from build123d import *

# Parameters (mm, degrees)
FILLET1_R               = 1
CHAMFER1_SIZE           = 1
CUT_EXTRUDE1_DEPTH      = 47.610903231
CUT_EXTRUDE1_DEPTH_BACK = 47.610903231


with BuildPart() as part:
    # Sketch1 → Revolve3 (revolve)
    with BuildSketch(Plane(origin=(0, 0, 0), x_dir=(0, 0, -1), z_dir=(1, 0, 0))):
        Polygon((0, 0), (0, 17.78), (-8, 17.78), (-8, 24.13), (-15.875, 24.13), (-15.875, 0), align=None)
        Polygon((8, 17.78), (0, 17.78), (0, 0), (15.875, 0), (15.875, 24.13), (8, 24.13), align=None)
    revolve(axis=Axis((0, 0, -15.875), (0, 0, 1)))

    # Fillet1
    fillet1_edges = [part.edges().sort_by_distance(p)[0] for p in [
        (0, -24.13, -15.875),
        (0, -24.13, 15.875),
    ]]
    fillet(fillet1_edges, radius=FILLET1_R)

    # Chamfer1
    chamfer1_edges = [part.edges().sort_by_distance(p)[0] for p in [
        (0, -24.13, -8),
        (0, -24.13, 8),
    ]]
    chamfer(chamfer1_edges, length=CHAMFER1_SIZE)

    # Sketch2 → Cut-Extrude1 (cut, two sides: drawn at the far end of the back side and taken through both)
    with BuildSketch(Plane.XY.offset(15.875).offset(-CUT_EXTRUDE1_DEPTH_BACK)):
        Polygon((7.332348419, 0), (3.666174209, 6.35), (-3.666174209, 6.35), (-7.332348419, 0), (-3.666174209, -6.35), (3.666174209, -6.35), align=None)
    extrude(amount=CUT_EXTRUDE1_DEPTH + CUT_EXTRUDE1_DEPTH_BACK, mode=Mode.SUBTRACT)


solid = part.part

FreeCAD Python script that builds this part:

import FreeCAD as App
import Part
import Sketcher
from FreeCAD import Vector
Q = App.Units.Quantity


def edges_at(feature, points):
    """Names of the edges that pass closest to the given points."""
    edges = feature.Shape.Edges
    near = lambda p: min(range(len(edges)), key=lambda i: edges[i].distToShape(Part.Vertex(*p))[0])
    return sorted({f"Edge{near(p) + 1}" for p in points})

doc = App.newDocument("Part")
params = doc.addObject("Spreadsheet::Sheet", "Params")
for row, (alias, value) in enumerate([
    ("sketch1_width", "0.25 in"),
    ("sketch1_width2", "0.95 in"),
    ("sketch1_height", "1.25 in"),
    ("revolution_angle", "360 deg"),
    ("fillet_radius", "1 mm"),
    ("chamfer_size", "1 mm"),
], start=1):
    params.set(f"A{row}", alias)
    params.set(f"B{row}", "=" + value)
    params.setAlias(f"B{row}", alias)

body = doc.addObject("PartDesign::Body", "Body")

sketch1 = body.newObject("Sketcher::SketchObject", "Sketch")
sketch1.AttachmentSupport = (doc.getObject("YZ_Plane"), [""])
sketch1.MapMode = "FlatFace"
sketch1.addGeometry([
    Part.LineSegment(Vector(17.78, 8, 0), Vector(24.13, 8, 0)),
    Part.LineSegment(Vector(24.13, 8, 0), Vector(24.13, 15.875, 0)),
    Part.LineSegment(Vector(24.13, 15.875, 0), Vector(0, 15.875, 0)),
    Part.LineSegment(Vector(0, 15.875, 0), Vector(0, -15.875, 0)),
    Part.LineSegment(Vector(0, -15.875, 0), Vector(24.13, -15.875, 0)),
    Part.LineSegment(Vector(24.13, -15.875, 0), Vector(24.13, -8, 0)),
    Part.LineSegment(Vector(24.13, -8, 0), Vector(17.78, -8, 0)),
    Part.LineSegment(Vector(17.78, -8, 0), Vector(17.78, 8, 0)),
], False)
sketch1.addConstraint([
    Sketcher.Constraint("Coincident", 0, 2, 1, 1),
    Sketcher.Constraint("Coincident", 1, 2, 2, 1),
    Sketcher.Constraint("Coincident", 2, 2, 3, 1),
    Sketcher.Constraint("Coincident", 3, 2, 4, 1),
    Sketcher.Constraint("Coincident", 4, 2, 5, 1),
    Sketcher.Constraint("Coincident", 5, 2, 6, 1),
    Sketcher.Constraint("Coincident", 6, 2, 7, 1),
    Sketcher.Constraint("Coincident", 7, 2, 0, 1),
    Sketcher.Constraint("Horizontal", 0),
    Sketcher.Constraint("Vertical", 1),
    Sketcher.Constraint("Horizontal", 2),
    Sketcher.Constraint("Vertical", 3),
    Sketcher.Constraint("Horizontal", 4),
    Sketcher.Constraint("Vertical", 5),
    Sketcher.Constraint("Horizontal", 6),
    Sketcher.Constraint("Vertical", 7),
    Sketcher.Constraint("Symmetric", 2, 2, 3, 2, -1, 1),
    Sketcher.Constraint("Symmetric", 0, 2, 5, 2, -1),
    Sketcher.Constraint("DistanceX", 0, 1, 0, 2, Q("0.25 in")),
    Sketcher.Constraint("DistanceX", 2, 2, 2, 1, Q("0.95 in")),
    Sketcher.Constraint("DistanceY", 3, 2, 3, 1, Q("1.25 in")),
    Sketcher.Constraint("DistanceY", 1, 1, 1, 2, Q("7.875 mm")),
])
sketch1.setExpression("Constraints[18]", "Params.sketch1_width")
sketch1.setExpression("Constraints[19]", "Params.sketch1_width2")
sketch1.setExpression("Constraints[20]", "Params.sketch1_height")
revolution = body.newObject("PartDesign::Revolution", "Revolution")
revolution.Profile = sketch1
revolution.ReferenceAxis = (sketch1, ["V_Axis"])
revolution.setExpression("Angle", "Params.revolution_angle")
doc.recompute()

fillet = body.newObject("PartDesign::Fillet", "Fillet")
fillet.Base = (revolution, edges_at(revolution, [(0, -24.13, -15.875), (0, -24.13, 15.875)]))
fillet.setExpression("Radius", "Params.fillet_radius")
doc.recompute()

chamfer = body.newObject("PartDesign::Chamfer", "Chamfer")
chamfer.Base = (fillet, edges_at(fillet, [(0, -24.13, -8), (0, -24.13, 8)]))
chamfer.setExpression("Size", "Params.chamfer_size")

sketch2 = body.newObject("Sketcher::SketchObject", "Sketch001")
sketch2.AttachmentSupport = (doc.getObject("XY_Plane"), [""])
sketch2.MapMode = "FlatFace"
sketch2.AttachmentOffset = App.Placement(Vector(0, 0, 0.625 * 25.4), App.Rotation())
sketch2.addGeometry([
    Part.LineSegment(Vector(7.332348, 0, 0), Vector(3.666174, 6.35, 0)),
    Part.LineSegment(Vector(3.666174, 6.35, 0), Vector(-3.666174, 6.35, 0)),
    Part.LineSegment(Vector(-3.666174, 6.35, 0), Vector(-7.332348, 0, 0)),
    Part.LineSegment(Vector(-7.332348, 0, 0), Vector(-3.666174, -6.35, 0)),
    Part.LineSegment(Vector(-3.666174, -6.35, 0), Vector(3.666174, -6.35, 0)),
    Part.LineSegment(Vector(3.666174, -6.35, 0), Vector(7.332348, 0, 0)),
], False)
sketch2.addConstraint([
    Sketcher.Constraint("Coincident", 0, 2, 1, 1),
    Sketcher.Constraint("Coincident", 1, 2, 2, 1),
    Sketcher.Constraint("Coincident", 2, 2, 3, 1),
    Sketcher.Constraint("Coincident", 3, 2, 4, 1),
    Sketcher.Constraint("Coincident", 4, 2, 5, 1),
    Sketcher.Constraint("Coincident", 5, 2, 0, 1),
    Sketcher.Constraint("Horizontal", 1),
    Sketcher.Constraint("Horizontal", 4),
    Sketcher.Constraint("Symmetric", 0, 2, 3, 2, -1, 1),
    Sketcher.Constraint("Symmetric", 2, 2, 5, 2, -1, 1),
    Sketcher.Constraint("PointOnObject", 2, 2, -1),
    Sketcher.Constraint("Parallel", 2, 5),
    Sketcher.Constraint("Vertical", 1, 2, 3, 2),
    Sketcher.Constraint("Angle", 0, Q("120 deg")),
    Sketcher.Constraint("DistanceY", 3, 2, 1, 2, Q("0.5 in")),
    Sketcher.Constraint("DistanceX", 1, 2, 1, 1, Q("7.332348 mm")),
])
pocket1 = body.newObject("PartDesign::Pocket", "Pocket")
pocket1.Profile = sketch2
pocket1.Type = "ThroughAll"
pocket1.Midplane = True

doc.recompute()
